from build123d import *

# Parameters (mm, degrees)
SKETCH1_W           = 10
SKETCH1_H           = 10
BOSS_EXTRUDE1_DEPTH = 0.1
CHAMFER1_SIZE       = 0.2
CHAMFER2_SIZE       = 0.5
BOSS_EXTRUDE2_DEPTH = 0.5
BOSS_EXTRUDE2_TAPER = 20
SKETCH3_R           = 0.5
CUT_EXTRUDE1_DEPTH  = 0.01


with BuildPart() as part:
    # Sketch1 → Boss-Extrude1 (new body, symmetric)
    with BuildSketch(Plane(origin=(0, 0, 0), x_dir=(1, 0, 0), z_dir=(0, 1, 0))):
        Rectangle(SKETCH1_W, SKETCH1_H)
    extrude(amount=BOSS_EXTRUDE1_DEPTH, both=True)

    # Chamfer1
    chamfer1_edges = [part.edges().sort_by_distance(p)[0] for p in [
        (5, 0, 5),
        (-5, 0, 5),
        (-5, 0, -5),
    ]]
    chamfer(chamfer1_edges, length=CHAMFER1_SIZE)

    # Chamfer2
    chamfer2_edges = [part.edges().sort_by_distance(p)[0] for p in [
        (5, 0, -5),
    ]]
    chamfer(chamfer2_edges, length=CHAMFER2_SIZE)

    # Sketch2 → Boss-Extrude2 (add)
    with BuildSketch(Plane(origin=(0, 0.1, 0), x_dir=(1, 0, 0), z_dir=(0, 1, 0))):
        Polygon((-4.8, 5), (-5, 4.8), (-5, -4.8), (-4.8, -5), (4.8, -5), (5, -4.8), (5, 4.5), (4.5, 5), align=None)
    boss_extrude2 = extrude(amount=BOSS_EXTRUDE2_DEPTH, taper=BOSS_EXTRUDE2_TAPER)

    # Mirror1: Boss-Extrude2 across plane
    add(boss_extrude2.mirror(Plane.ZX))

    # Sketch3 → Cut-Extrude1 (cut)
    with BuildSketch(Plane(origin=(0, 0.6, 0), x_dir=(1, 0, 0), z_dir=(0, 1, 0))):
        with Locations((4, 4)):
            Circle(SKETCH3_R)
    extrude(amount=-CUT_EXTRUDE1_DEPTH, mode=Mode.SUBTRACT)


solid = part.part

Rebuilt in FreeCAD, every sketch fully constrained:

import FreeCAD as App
import Part
import Sketcher
Q = App.Units.Quantity


def edges_at(feature, points):
    """Names of the edges that pass closest to the given points."""
    edges = feature.Shape.Edges
    near = lambda p: min(range(len(edges)), key=lambda i: edges[i].distToShape(Part.Vertex(*p))[0])
    return sorted({f"Edge{near(p) + 1}" for p in points})


def add_polygon(sketch, points):
    """Adds a closed chain of lines whose ends are joined by coincident constraints."""
    first, n = sketch.GeometryCount, len(points)
    for a, b in zip(points, points[1:] + points[:1]):
        sketch.addGeometry(Part.LineSegment(App.Vector(*a, 0), App.Vector(*b, 0)), False)
    for i in range(n):
        sketch.addConstraint(Sketcher.Constraint("Coincident", first + i, 2, first + (i + 1) % n, 1))

doc = App.newDocument("Part")
body = doc.addObject("PartDesign::Body", "Body")

sketch1 = doc.addObject("Sketcher::SketchObject", "Sketch")
body.addObject(sketch1)
sketch1.AttachmentSupport = (doc.XZ_Plane, [""])
sketch1.MapMode = "FlatFace"
add_polygon(sketch1, [(-5, -5), (-5, 5), (5, 5), (5, -5)])
sketch1.addConstraint(Sketcher.Constraint("Vertical", 0))
sketch1.addConstraint(Sketcher.Constraint("Horizontal", 1))
sketch1.addConstraint(Sketcher.Constraint("Vertical", 2))
sketch1.addConstraint(Sketcher.Constraint("Horizontal", 3))
sketch1.addConstraint(Sketcher.Constraint("Symmetric", 0, 2, 2, 2, -1, 1))
sketch1.addConstraint(Sketcher.Constraint("Equal", 3, 0))
sketch1.addConstraint(Sketcher.Constraint("DistanceX", 1, 1, 1, 2, Q("10 mm")))
pad1 = doc.addObject("PartDesign::Pad", "Pad")
body.addObject(pad1)
pad1.Profile = sketch1
pad1.Length = 0.2
pad1.Midplane = True
doc.recompute()

chamfer = doc.addObject("PartDesign::Chamfer", "Chamfer")
body.addObject(chamfer)
chamfer.Base = (pad1, edges_at(pad1, [(5, 0, 5), (-5, 0, 5), (-5, 0, -5)]))
chamfer.Size = 0.2
doc.recompute()

chamfer2 = doc.addObject("PartDesign::Chamfer", "Chamfer001")
body.addObject(chamfer2)
chamfer2.Base = (chamfer, edges_at(chamfer, [(5, 0, -5)]))
chamfer2.Size = 0.5

sketch2 = doc.addObject("Sketcher::SketchObject", "Sketch001")
body.addObject(sketch2)
sketch2.AttachmentSupport = (doc.XZ_Plane, [""])
sketch2.MapMode = "FlatFace"
sketch2.AttachmentOffset = App.Placement(App.Vector(0, 0, -0.1), App.Rotation())
add_polygon(sketch2, [(-4.8, -5), (-5, -4.8), (-5, 4.8), (-4.8, 5), (4.8, 5), (5, 4.8), (5, -4.5), (4.5, -5)])
sketch2.addConstraint(Sketcher.Constraint("Vertical", 1))
sketch2.addConstraint(Sketcher.Constraint("Horizontal", 3))
sketch2.addConstraint(Sketcher.Constraint("Vertical", 5))
sketch2.addConstraint(Sketcher.Constraint("Horizontal", 7))
sketch2.addConstraint(Sketcher.Constraint("Symmetric", 0, 2, 4, 2, -1, 1))
sketch2.addConstraint(Sketcher.Constraint("Symmetric", 3, 2, 7, 2, -1, 1))
sketch2.addConstraint(Sketcher.Constraint("Perpendicular", 0, 2))
sketch2.addConstraint(Sketcher.Constraint("Perpendicular", 4, 6))
sketch2.addConstraint(Sketcher.Constraint("Horizontal", 1, 2, 4, 2))
sketch2.addConstraint(Sketcher.Constraint("Vertical", 2, 2, 7, 2))
sketch2.addConstraint(Sketcher.Constraint("Equal", 3, 1))
sketch2.addConstraint(Sketcher.Constraint("DistanceX", 3, 1, 3, 2, Q("9.6 mm")))
sketch2.addConstraint(Sketcher.Constraint("DistanceX", 7, 2, 7, 1, Q("9.3 mm")))
sketch2.addConstraint(Sketcher.Constraint("DistanceX", 0, 2, -1, 1, Q("5 mm")))
pad2 = doc.addObject("PartDesign::Pad", "Pad001")
body.addObject(pad2)
pad2.Profile = sketch2
pad2.Length = 0.5
pad2.Reversed = True
pad2.TaperAngle = -20
doc.recompute()

mirrored = doc.addObject("PartDesign::Mirrored", "Mirrored")
body.addObject(mirrored)
mirrored.Originals = [pad2]
mirrored.MirrorPlane = (doc.XZ_Plane, [""])
body.Tip = mirrored

sketch3 = doc.addObject("Sketcher::SketchObject", "Sketch002")
body.addObject(sketch3)
sketch3.AttachmentSupport = (doc.XZ_Plane, [""])
sketch3.MapMode = "FlatFace"
sketch3.AttachmentOffset = App.Placement(App.Vector(0, 0, -0.6), App.Rotation())
sketch3.addGeometry(Part.Circle(App.Vector(4, -4, 0), App.Vector(0, 0, 1), 0.5), False)
sketch3.addConstraint(Sketcher.Constraint("Diameter", 0, Q("1 mm")))
sketch3.addConstraint(Sketcher.Constraint("DistanceX", -1, 1, 0, 3, Q("4 mm")))
sketch3.addConstraint(Sketcher.Constraint("DistanceY", 0, 3, -1, 1, Q("4 mm")))
pocket1 = doc.addObject("PartDesign::Pocket", "Pocket")
body.addObject(pocket1)
pocket1.Profile = sketch3
pocket1.Length = 0.01
pocket1.Reversed = True

doc.recompute()
